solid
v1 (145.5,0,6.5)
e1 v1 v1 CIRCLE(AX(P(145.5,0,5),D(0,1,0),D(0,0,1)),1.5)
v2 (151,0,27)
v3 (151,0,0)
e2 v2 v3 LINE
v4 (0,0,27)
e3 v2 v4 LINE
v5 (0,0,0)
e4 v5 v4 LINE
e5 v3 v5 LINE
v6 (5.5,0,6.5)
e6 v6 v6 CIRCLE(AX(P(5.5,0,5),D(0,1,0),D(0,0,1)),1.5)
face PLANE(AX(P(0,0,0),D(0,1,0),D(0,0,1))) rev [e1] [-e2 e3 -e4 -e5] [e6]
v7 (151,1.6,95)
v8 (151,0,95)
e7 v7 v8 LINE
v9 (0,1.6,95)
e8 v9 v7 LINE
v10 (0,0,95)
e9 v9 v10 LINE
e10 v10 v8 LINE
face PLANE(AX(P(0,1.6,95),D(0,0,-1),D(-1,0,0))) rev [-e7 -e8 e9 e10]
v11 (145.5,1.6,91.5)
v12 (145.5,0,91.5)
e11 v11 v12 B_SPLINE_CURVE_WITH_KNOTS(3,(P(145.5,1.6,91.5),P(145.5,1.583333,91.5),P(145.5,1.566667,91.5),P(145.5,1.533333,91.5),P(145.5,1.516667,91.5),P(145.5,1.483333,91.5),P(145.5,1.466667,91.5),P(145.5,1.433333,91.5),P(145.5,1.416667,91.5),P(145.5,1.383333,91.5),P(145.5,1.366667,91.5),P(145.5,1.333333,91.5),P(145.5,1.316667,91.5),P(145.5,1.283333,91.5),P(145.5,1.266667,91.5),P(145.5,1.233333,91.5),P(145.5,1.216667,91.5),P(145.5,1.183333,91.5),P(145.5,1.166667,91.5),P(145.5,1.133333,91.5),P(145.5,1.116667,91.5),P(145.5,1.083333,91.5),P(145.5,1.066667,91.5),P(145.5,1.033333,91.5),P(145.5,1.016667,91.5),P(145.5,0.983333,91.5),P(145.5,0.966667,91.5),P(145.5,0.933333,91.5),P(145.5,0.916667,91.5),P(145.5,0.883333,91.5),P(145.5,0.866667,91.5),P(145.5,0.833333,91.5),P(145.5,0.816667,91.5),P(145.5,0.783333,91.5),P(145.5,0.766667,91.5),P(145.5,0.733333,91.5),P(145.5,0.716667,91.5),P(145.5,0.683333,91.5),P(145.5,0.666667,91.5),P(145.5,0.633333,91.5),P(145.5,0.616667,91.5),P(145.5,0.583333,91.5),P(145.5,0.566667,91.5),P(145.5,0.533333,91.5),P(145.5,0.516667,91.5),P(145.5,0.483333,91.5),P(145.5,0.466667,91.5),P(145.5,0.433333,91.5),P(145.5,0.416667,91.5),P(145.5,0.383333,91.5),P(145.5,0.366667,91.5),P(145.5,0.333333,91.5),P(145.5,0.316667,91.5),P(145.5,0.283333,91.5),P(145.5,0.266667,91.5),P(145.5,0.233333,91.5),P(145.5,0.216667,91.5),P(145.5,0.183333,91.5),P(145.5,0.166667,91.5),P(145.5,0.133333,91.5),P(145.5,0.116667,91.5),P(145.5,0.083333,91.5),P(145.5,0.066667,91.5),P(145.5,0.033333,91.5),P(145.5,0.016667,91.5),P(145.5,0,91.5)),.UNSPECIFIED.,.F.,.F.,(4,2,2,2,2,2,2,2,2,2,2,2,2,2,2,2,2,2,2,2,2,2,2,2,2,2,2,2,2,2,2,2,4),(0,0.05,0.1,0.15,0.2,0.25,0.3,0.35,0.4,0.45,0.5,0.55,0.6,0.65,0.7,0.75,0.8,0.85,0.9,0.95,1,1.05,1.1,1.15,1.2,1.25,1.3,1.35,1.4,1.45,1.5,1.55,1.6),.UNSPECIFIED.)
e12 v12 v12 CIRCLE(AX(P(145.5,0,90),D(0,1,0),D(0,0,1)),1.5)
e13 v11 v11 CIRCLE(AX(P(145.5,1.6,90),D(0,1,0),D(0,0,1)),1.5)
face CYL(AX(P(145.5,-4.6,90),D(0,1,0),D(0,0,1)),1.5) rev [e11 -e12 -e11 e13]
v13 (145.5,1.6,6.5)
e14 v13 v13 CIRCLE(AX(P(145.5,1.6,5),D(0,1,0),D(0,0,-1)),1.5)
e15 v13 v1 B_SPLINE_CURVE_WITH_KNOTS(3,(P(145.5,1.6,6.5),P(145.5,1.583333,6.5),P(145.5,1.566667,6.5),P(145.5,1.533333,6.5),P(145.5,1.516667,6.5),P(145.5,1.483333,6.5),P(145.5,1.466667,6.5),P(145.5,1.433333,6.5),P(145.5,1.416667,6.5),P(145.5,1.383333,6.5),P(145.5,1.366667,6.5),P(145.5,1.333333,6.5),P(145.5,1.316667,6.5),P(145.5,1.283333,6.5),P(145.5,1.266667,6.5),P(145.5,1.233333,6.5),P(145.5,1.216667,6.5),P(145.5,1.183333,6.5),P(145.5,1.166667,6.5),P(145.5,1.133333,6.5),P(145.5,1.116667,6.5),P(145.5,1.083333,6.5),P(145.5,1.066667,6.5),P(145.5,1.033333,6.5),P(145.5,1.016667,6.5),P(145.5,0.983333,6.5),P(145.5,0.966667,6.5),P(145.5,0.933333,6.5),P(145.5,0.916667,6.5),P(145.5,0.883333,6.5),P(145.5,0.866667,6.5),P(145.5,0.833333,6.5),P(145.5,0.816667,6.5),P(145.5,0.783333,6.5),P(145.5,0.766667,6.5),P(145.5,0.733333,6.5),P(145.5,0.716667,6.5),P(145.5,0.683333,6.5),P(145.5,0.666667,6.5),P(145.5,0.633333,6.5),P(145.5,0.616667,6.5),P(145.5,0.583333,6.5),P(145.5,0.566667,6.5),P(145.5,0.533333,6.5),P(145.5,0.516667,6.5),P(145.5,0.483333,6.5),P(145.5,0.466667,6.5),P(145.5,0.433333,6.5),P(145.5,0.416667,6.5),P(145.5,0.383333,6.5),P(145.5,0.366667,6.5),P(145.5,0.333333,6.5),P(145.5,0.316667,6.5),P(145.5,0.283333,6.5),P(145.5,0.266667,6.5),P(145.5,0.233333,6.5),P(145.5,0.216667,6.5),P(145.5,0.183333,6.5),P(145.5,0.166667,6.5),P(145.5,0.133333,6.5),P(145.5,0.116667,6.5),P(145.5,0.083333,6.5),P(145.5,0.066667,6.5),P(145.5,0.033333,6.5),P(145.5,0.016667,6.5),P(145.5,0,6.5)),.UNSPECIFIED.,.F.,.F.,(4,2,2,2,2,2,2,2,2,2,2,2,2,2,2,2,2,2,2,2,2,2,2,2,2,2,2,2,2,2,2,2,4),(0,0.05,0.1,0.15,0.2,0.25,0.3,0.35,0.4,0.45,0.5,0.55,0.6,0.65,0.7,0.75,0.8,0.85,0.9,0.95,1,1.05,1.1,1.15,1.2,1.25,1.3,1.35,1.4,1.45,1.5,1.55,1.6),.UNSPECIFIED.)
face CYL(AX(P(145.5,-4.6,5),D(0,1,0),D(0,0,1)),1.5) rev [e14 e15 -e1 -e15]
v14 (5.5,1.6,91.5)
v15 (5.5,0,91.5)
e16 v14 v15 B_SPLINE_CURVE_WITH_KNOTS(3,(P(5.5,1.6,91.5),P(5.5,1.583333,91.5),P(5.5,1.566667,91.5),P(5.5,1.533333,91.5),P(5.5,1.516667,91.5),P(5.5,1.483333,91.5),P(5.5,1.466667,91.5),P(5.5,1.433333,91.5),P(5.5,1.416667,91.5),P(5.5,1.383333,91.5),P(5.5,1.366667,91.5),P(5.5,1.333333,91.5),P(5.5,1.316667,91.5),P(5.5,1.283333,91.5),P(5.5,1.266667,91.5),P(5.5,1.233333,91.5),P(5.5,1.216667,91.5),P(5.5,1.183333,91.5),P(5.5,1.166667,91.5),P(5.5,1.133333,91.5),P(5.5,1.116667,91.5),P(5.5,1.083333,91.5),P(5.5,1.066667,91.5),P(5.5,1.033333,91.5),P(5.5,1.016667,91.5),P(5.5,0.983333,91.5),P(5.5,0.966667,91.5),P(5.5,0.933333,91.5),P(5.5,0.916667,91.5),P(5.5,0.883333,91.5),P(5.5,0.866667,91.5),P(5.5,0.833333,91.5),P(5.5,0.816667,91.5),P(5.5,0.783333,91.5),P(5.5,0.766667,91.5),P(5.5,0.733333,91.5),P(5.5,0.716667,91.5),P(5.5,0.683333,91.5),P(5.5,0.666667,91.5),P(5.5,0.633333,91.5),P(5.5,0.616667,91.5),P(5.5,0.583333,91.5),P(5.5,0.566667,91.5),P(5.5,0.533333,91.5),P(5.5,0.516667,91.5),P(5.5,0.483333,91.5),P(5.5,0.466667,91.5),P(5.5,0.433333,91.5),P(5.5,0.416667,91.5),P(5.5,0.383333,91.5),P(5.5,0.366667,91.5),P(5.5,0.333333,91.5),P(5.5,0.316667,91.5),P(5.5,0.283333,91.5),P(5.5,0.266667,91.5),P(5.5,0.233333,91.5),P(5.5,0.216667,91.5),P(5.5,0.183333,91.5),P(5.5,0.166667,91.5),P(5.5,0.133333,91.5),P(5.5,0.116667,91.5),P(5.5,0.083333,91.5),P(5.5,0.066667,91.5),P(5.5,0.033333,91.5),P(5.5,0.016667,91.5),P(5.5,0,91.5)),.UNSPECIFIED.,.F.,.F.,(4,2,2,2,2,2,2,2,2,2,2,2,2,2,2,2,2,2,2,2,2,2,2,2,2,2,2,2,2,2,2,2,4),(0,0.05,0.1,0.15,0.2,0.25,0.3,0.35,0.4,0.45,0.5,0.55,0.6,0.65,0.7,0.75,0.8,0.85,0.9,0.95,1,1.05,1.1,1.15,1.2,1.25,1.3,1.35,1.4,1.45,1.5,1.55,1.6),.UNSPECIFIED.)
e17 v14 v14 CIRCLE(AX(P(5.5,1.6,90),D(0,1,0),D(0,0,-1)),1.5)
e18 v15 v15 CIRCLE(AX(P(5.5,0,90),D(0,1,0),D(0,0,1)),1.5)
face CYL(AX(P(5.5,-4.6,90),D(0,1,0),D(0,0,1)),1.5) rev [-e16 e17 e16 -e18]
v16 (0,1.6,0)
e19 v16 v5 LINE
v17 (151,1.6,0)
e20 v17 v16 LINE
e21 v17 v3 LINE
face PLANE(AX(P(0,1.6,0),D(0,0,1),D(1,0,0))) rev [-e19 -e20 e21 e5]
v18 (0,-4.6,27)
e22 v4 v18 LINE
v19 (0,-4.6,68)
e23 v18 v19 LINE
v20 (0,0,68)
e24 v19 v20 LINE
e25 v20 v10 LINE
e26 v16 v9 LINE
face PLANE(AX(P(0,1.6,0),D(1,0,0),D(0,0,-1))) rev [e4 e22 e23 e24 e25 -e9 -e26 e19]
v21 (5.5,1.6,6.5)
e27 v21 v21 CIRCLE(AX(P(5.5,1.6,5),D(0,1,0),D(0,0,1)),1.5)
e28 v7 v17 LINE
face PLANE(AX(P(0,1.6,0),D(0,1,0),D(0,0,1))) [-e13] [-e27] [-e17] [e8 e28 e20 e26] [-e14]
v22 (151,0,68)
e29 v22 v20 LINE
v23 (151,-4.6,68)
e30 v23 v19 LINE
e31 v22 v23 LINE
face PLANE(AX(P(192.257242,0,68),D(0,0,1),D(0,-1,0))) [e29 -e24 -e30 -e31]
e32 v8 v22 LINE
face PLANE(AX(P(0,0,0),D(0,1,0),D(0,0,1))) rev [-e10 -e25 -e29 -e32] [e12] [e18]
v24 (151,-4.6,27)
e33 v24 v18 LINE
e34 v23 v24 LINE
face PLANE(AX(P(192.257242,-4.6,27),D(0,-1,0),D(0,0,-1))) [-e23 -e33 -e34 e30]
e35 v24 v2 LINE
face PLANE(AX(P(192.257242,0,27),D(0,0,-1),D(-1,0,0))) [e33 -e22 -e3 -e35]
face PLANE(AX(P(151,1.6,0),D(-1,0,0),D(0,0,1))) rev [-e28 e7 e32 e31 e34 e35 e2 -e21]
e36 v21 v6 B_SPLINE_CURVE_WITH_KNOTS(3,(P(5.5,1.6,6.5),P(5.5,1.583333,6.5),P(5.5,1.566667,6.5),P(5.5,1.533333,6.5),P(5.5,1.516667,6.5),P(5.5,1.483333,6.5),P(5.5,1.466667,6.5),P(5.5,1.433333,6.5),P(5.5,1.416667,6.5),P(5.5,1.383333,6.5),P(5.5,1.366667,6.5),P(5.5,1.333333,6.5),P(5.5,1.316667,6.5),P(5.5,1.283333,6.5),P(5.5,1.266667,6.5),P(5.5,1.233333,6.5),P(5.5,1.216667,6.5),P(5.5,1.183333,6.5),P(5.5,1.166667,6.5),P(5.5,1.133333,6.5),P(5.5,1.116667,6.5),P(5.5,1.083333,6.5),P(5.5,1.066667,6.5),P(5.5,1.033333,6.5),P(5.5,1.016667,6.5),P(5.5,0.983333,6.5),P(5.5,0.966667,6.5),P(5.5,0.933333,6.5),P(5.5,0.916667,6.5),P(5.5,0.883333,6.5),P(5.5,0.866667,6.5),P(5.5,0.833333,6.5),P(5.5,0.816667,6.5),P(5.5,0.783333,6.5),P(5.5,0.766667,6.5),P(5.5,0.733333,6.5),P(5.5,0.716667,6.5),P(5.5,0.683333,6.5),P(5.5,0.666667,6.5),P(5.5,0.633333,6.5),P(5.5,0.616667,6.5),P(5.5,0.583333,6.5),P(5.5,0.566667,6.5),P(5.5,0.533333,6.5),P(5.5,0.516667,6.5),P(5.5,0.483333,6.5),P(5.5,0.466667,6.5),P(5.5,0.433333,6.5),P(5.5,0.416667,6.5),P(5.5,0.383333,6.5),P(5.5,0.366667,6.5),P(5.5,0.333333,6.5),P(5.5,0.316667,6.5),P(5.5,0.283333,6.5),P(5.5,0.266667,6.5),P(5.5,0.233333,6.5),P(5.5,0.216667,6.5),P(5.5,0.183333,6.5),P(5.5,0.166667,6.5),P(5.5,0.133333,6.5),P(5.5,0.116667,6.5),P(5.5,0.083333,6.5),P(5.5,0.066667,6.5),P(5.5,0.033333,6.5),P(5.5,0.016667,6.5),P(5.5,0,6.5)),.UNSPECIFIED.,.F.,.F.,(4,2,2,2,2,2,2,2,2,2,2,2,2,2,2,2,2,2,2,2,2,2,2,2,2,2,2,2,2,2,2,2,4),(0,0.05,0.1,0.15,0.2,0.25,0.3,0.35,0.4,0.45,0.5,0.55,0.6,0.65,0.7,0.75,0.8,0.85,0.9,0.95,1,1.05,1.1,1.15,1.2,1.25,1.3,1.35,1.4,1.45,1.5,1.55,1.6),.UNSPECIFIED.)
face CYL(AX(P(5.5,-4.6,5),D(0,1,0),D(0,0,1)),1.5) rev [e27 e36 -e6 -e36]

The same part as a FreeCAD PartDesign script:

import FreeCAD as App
import Part
import Sketcher

doc = App.newDocument("Part")
params = doc.addObject("Spreadsheet::Sheet", "Params")
for row, (alias, value) in enumerate([
    ("sketch1_width", "151 mm"),
    ("sketch1_height", "95 mm"),
    ("pad1_length", "1.6 mm"),
    ("sketch2_height", "41 mm"),
    ("sketch2_width", "4.6 mm"),
    ("pad2_length", "151 mm"),
    ("sketch3_diameter", "3 mm"),
], start=1):
    params.set(f"A{row}", alias)
    params.set(f"B{row}", "=" + value)
    params.setAlias(f"B{row}", alias)

body = doc.addObject("PartDesign::Body", "Body")

sketch1 = body.newObject("Sketcher::SketchObject", "Sketch")
sketch1.AttachmentSupport = (doc.getObject("XZ_Plane"), [""])
sketch1.MapMode = "FlatFace"
sketch1.addGeometry([
    Part.LineSegment(App.Vector(0, 0, 0), App.Vector(0, 95, 0)),
    Part.LineSegment(App.Vector(0, 95, 0), App.Vector(151, 95, 0)),
    Part.LineSegment(App.Vector(151, 95, 0), App.Vector(151, 0, 0)),
    Part.LineSegment(App.Vector(151, 0, 0), App.Vector(0, 0, 0)),
], False)
sketch1.addConstraint([
    Sketcher.Constraint("Coincident", 0, 2, 1, 1),
    Sketcher.Constraint("Coincident", 1, 2, 2, 1),
    Sketcher.Constraint("Coincident", 2, 2, 3, 1),
    Sketcher.Constraint("Coincident", 3, 2, 0, 1),
    Sketcher.Constraint("Vertical", 0),
    Sketcher.Constraint("Horizontal", 1),
    Sketcher.Constraint("Vertical", 2),
    Sketcher.Constraint("Horizontal", 3),
    Sketcher.Constraint("Coincident", 3, 2, -1, 1),
    Sketcher.Constraint("DistanceX", 1, 1, 1, 2, 151.0),
    Sketcher.Constraint("DistanceY", 0, 1, 0, 2, 95.0),
])
sketch1.setExpression("Constraints[9]", "Params.sketch1_width")
sketch1.setExpression("Constraints[10]", "Params.sketch1_height")
pad1 = body.newObject("PartDesign::Pad", "Pad")
pad1.Profile = sketch1
pad1.setExpression("Length", "Params.pad1_length")
pad1.Reversed = True

sketch2 = body.newObject("Sketcher::SketchObject", "Sketch001")
sketch2.AttachmentSupport = (doc.getObject("YZ_Plane"), [""])
sketch2.MapMode = "FlatFace"
sketch2.addGeometry([
    Part.LineSegment(App.Vector(0, 27, 0), App.Vector(-4.6, 27, 0)),
    Part.LineSegment(App.Vector(-4.6, 27, 0), App.Vector(-4.6, 68, 0)),
    Part.LineSegment(App.Vector(-4.6, 68, 0), App.Vector(0, 68, 0)),
    Part.LineSegment(App.Vector(0, 68, 0), App.Vector(0, 27, 0)),
], False)
sketch2.addConstraint([
    Sketcher.Constraint("Coincident", 0, 2, 1, 1),
    Sketcher.Constraint("Coincident", 1, 2, 2, 1),
    Sketcher.Constraint("Coincident", 2, 2, 3, 1),
    Sketcher.Constraint("Coincident", 3, 2, 0, 1),
    Sketcher.Constraint("Horizontal", 0),
    Sketcher.Constraint("Vertical", 1),
    Sketcher.Constraint("Horizontal", 2),
    Sketcher.Constraint("Vertical", 3),
    Sketcher.Constraint("PointOnObject", 2, 2, -2),
    Sketcher.Constraint("DistanceY", 1, 1, 1, 2, 41.0),
    Sketcher.Constraint("DistanceX", 0, 2, 0, 1, 4.6),
    Sketcher.Constraint("DistanceY", -1, 1, 0, 2, 27.0),
])
sketch2.setExpression("Constraints[9]", "Params.sketch2_height")
sketch2.setExpression("Constraints[10]", "Params.sketch2_width")
pad2 = body.newObject("PartDesign::Pad", "Pad001")
pad2.Profile = sketch2
pad2.setExpression("Length", "Params.pad2_length")

sketch3 = body.newObject("Sketcher::SketchObject", "Sketch002")
sketch3.AttachmentSupport = (doc.getObject("XZ_Plane"), [""])
sketch3.MapMode = "FlatFace"
sketch3.AttachmentOffset = App.Placement(App.Vector(0, 0, -1.6), App.Rotation())
sketch3.addGeometry([
    Part.Circle(App.Vector(5.5, 5, 0), App.Vector(0, 0, 1), 1.5),
    Part.Circle(App.Vector(5.5, 90, 0), App.Vector(0, 0, 1), 1.5),
    Part.Circle(App.Vector(145.5, 90, 0), App.Vector(0, 0, 1), 1.5),
    Part.Circle(App.Vector(145.5, 5, 0), App.Vector(0, 0, 1), 1.5),
], False)
sketch3.addConstraint([
    Sketcher.Constraint("Equal", 0, 1),
    Sketcher.Constraint("Equal", 1, 2),
    Sketcher.Constraint("Equal", 2, 3),
    Sketcher.Constraint("Horizontal", 1, 3, 2, 3),
    Sketcher.Constraint("Horizontal", 0, 3, 3, 3),
    Sketcher.Constraint("Vertical", 0, 3, 1, 3),
    Sketcher.Constraint("Vertical", 2, 3, 3, 3),
    Sketcher.Constraint("Diameter", 0, 3.0),
    Sketcher.Constraint("DistanceY", -1, 1, 0, 3, 5.0),
    Sketcher.Constraint("DistanceY", -1, 1, 1, 3, 90.0),
    Sketcher.Constraint("DistanceX", 1, 3, 2, 3, 140.0),
    Sketcher.Constraint("DistanceX", -1, 1, 0, 3, 5.5),
])
sketch3.setExpression("Constraints[7]", "Params.sketch3_diameter")
pocket1 = body.newObject("PartDesign::Pocket", "Pocket")
pocket1.Profile = sketch3
pocket1.Type = "ThroughAll"
pocket1.Reversed = True

doc.recompute()
